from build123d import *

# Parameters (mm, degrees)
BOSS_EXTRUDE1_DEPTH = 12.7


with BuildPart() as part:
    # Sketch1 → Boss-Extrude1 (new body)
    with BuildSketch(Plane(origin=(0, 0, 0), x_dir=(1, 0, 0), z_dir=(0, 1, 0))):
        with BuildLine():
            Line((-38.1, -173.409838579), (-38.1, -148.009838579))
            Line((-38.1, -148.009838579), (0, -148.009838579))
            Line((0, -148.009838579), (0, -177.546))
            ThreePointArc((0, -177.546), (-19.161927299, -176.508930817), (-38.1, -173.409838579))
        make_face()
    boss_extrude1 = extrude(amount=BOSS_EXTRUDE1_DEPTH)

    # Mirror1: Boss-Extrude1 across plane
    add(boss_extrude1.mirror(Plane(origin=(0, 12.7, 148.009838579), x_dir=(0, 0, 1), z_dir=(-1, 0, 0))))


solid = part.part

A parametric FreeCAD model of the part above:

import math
import FreeCAD as App
import Part
import Sketcher
Q = App.Units.Quantity

doc = App.newDocument("Part")
body = doc.addObject("PartDesign::Body", "Body")

# Sketch on XZ plane
sketch1 = body.newObject("Sketcher::SketchObject", "Sketch")
sketch1.AttachmentSupport = (doc.getObject("XZ_Plane"), [""])
sketch1.MapMode = "FlatFace"
sketch1.addGeometry([
    Part.LineSegment(App.Vector(-38.1, 148.009839, 0), App.Vector(-38.1, 173.409839, 0)),
    Part.ArcOfCircle(Part.Circle(App.Vector(0, 0, 0), App.Vector(0, 0, 1), 177.546), math.radians(90), math.radians(102.391608)),
    Part.LineSegment(App.Vector(0, 177.546, 0), App.Vector(0, 148.009839, 0)),
    Part.LineSegment(App.Vector(0, 148.009839, 0), App.Vector(-38.1, 148.009839, 0)),
], False)
sketch1.addConstraint([
    Sketcher.Constraint("Coincident", 0, 2, 1, 2),
    Sketcher.Constraint("Coincident", 1, 1, 2, 1),
    Sketcher.Constraint("Coincident", 2, 2, 3, 1),
    Sketcher.Constraint("Coincident", 3, 2, 0, 1),
    Sketcher.Constraint("Vertical", 0),
    Sketcher.Constraint("Vertical", 2),
    Sketcher.Constraint("Horizontal", 3),
    Sketcher.Constraint("Coincident", 1, 3, -1, 1),
    Sketcher.Constraint("PointOnObject", 1, 1, -2),
    Sketcher.Constraint("DistanceY", 0, 1, 0, 2, Q("1 in")),
    Sketcher.Constraint("Radius", 1, Q("6.99 in")),
    Sketcher.Constraint("DistanceX", 3, 2, 3, 1, Q("1.5 in")),
])
pad1 = body.newObject("PartDesign::Pad", "Pad")
pad1.Profile = sketch1
pad1.Length = Q("0.5 in")
pad1.Reversed = True
doc.recompute()

mirrored = body.newObject("PartDesign::Mirrored", "Mirrored")
mirrored.Originals = [pad1]
mirrored.MirrorPlane = (doc.getObject("YZ_Plane"), [""])
body.Tip = mirrored

doc.recompute()
